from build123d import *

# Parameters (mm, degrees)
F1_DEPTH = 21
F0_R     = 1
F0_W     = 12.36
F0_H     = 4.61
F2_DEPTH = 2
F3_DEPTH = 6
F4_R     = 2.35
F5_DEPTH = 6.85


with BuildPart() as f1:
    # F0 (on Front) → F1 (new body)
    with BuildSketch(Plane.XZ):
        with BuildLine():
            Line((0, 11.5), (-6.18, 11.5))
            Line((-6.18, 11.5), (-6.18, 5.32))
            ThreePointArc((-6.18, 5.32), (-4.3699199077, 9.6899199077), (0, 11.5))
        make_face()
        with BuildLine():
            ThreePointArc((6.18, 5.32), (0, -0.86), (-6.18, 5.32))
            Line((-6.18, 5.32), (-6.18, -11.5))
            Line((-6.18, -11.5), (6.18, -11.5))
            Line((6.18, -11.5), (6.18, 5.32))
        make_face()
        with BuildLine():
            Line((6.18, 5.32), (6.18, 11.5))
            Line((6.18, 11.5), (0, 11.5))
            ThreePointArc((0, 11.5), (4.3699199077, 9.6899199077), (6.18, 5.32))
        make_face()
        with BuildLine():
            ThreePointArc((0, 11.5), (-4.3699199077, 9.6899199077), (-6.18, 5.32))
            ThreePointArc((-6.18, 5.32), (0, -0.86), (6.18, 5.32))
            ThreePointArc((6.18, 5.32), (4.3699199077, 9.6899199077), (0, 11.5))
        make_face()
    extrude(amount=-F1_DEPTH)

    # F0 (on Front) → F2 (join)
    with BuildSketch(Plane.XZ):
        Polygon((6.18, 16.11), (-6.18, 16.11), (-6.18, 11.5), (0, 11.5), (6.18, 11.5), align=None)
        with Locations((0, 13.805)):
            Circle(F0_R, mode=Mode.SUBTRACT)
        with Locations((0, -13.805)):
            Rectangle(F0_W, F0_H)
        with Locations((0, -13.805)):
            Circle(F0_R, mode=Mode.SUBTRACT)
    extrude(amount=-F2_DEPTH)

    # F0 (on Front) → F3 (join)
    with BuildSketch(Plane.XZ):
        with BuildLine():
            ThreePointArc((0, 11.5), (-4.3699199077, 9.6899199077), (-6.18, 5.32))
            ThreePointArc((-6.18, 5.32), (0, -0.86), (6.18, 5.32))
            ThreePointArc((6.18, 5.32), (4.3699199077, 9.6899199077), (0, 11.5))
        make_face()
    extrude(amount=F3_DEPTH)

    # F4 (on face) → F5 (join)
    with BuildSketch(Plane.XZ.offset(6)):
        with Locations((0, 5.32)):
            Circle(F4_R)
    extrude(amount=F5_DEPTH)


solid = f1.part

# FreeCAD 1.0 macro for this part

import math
import FreeCAD as App
import Part
import Sketcher
from FreeCAD import Vector
Q = App.Units.Quantity


def add_polygon(sketch, points):
    """Adds a closed chain of lines whose ends are joined by coincident constraints."""
    first, n = sketch.GeometryCount, len(points)
    for a, b in zip(points, points[1:] + points[:1]):
        sketch.addGeometry(Part.LineSegment(App.Vector(*a, 0), App.Vector(*b, 0)), False)
    for i in range(n):
        sketch.addConstraint(Sketcher.Constraint("Coincident", first + i, 2, first + (i + 1) % n, 1))

doc = App.newDocument("Part")
params = doc.addObject("Spreadsheet::Sheet", "Params")
for row, (alias, value) in enumerate([
    ("sketch1_height", "23 mm"),
    ("sketch1_width", "12.36 mm"),
    ("pad1_length", "21 mm"),
    ("sketch2_diameter", "2 mm"),
    ("sketch2_width", "12.36 mm"),
    ("sketch2_height", "4.61 mm"),
    ("pad2_length", "2 mm"),
    ("sketch3_radius", "6.18 mm"),
    ("pad3_length", "6 mm"),
    ("sketch4_diameter", "4.7 mm"),
    ("pad4_length", "6.85 mm"),
], start=1):
    params.set(f"A{row}", alias)
    params.set(f"B{row}", "=" + value)
    params.setAlias(f"B{row}", alias)

body = doc.addObject("PartDesign::Body", "Body")

# Sketch on XZ plane
sketch1 = body.newObject("Sketcher::SketchObject", "Sketch")
sketch1.AttachmentSupport = (doc.getObject("XZ_Plane"), [""])
sketch1.MapMode = "FlatFace"
add_polygon(sketch1, [(-6.18, 11.5), (-6.18, -11.5), (6.18, -11.5), (6.18, 11.5)])  # lines 0-3
sketch1.addConstraint([
    Sketcher.Constraint("Vertical", 0),
    Sketcher.Constraint("Horizontal", 1),
    Sketcher.Constraint("Vertical", 2),
    Sketcher.Constraint("Horizontal", 3),
    Sketcher.Constraint("Symmetric", 0, 2, 2, 2, -1, 1),
    Sketcher.Constraint("DistanceY", 0, 2, 0, 1, Q("23 mm")),
    Sketcher.Constraint("DistanceX", 1, 1, 1, 2, Q("12.36 mm")),
])
sketch1.setExpression("Constraints[9]", "Params.sketch1_height")
sketch1.setExpression("Constraints[10]", "Params.sketch1_width")
pad1 = body.newObject("PartDesign::Pad", "Pad")
pad1.Profile = sketch1
pad1.setExpression("Length", "Params.pad1_length")
pad1.Reversed = True

# Sketch on XZ plane
sketch2 = body.newObject("Sketcher::SketchObject", "Sketch001")
sketch2.AttachmentSupport = (doc.getObject("XZ_Plane"), [""])
sketch2.MapMode = "FlatFace"
add_polygon(sketch2, [(6.18, 16.11), (-6.18, 16.11), (-6.18, 11.5), (6.18, 11.5)])  # lines 0-3
sketch2.addGeometry(Part.Circle(Vector(0, 13.805, 0), Vector(0, 0, 1), 1), False)  # 4
add_polygon(sketch2, [(-6.18, -11.5), (-6.18, -16.11), (6.18, -16.11), (6.18, -11.5)])  # lines 5-8
sketch2.addGeometry(Part.Circle(Vector(0, -13.805, 0), Vector(0, 0, 1), 1), False)  # 9
sketch2.addConstraint([
    Sketcher.Constraint("Horizontal", 0),
    Sketcher.Constraint("Vertical", 1),
    Sketcher.Constraint("Horizontal", 2),
    Sketcher.Constraint("Vertical", 3),
    Sketcher.Constraint("Vertical", 5),
    Sketcher.Constraint("Horizontal", 6),
    Sketcher.Constraint("Vertical", 7),
    Sketcher.Constraint("Horizontal", 8),
    Sketcher.Constraint("Equal", 4, 9),
    Sketcher.Constraint("Symmetric", 4, 3, 9, 3, -1, 1),
    Sketcher.Constraint("Symmetric", 3, 2, 5, 2, -1, 1),
    Sketcher.Constraint("Symmetric", 1, 2, 7, 2, -1, 1),
    Sketcher.Constraint("PointOnObject", 4, 3, -2),
    Sketcher.Constraint("Vertical", 1, 2, 5, 2),
    Sketcher.Constraint("Diameter", 4, Q("2 mm")),
    Sketcher.Constraint("DistanceY", 7, 2, 2, 2, Q("23 mm")),
    Sketcher.Constraint("DistanceX", 0, 2, 0, 1, Q("12.36 mm")),
    Sketcher.Constraint("DistanceY", 1, 2, 1, 1, Q("4.61 mm")),
    Sketcher.Constraint("DistanceY", 9, 3, 4, 3, Q("27.61 mm")),
])
sketch2.setExpression("Constraints[22]", "Params.sketch2_diameter")
sketch2.setExpression("Constraints[24]", "Params.sketch2_width")
sketch2.setExpression("Constraints[25]", "Params.sketch2_height")
pad2 = body.newObject("PartDesign::Pad", "Pad001")
pad2.Profile = sketch2
pad2.setExpression("Length", "Params.pad2_length")
pad2.Reversed = True

# Sketch on XZ plane
sketch3 = body.newObject("Sketcher::SketchObject", "Sketch002")
sketch3.AttachmentSupport = (doc.getObject("XZ_Plane"), [""])
sketch3.MapMode = "FlatFace"
sketch3.addGeometry([
    Part.ArcOfCircle(Part.Circle(Vector(0, 5.32, 0), Vector(0, 0, 1), 6.18), math.radians(90), math.radians(180)),
    Part.ArcOfCircle(Part.Circle(Vector(0, 5.32, 0), Vector(0, 0, 1), 6.18), math.radians(180), math.radians(360)),
    Part.ArcOfCircle(Part.Circle(Vector(0, 5.32, 0), Vector(0, 0, 1), 6.18), math.radians(0), math.radians(90)),
], False)
sketch3.addConstraint([
    Sketcher.Constraint("Tangent", 0, 2, 1, 1),
    Sketcher.Constraint("Tangent", 1, 2, 2, 1),
    Sketcher.Constraint("Tangent", 2, 2, 0, 1),
    Sketcher.Constraint("Symmetric", 0, 2, 1, 2, -2),
    Sketcher.Constraint("PointOnObject", 2, 2, -2),
    Sketcher.Constraint("Horizontal", 2, 3, 0, 2),
    Sketcher.Constraint("Radius", 0, Q("6.18 mm")),
    Sketcher.Constraint("DistanceY", -1, 1, 2, 2, Q("11.5 mm")),
])
sketch3.setExpression("Constraints[6]", "Params.sketch3_radius")
pad3 = body.newObject("PartDesign::Pad", "Pad002")
pad3.Profile = sketch3
pad3.setExpression("Length", "Params.pad3_length")

# Sketch on XZ plane
sketch4 = body.newObject("Sketcher::SketchObject", "Sketch003")
sketch4.AttachmentSupport = (doc.getObject("XZ_Plane"), [""])
sketch4.MapMode = "FlatFace"
sketch4.AttachmentOffset = App.Placement(Vector(0, 0, 6), App.Rotation())
sketch4.addGeometry(Part.Circle(Vector(0, 5.32, 0), Vector(0, 0, 1), 2.35), False)
sketch4.addConstraint([
    Sketcher.Constraint("PointOnObject", 0, 3, -2),
    Sketcher.Constraint("Diameter", 0, Q("4.7 mm")),
    Sketcher.Constraint("DistanceY", -1, 1, 0, 3, Q("5.32 mm")),
])
sketch4.setExpression("Constraints[1]", "Params.sketch4_diameter")
pad4 = body.newObject("PartDesign::Pad", "Pad003")
pad4.Profile = sketch4
pad4.setExpression("Length", "Params.pad4_length")

doc.recompute()
